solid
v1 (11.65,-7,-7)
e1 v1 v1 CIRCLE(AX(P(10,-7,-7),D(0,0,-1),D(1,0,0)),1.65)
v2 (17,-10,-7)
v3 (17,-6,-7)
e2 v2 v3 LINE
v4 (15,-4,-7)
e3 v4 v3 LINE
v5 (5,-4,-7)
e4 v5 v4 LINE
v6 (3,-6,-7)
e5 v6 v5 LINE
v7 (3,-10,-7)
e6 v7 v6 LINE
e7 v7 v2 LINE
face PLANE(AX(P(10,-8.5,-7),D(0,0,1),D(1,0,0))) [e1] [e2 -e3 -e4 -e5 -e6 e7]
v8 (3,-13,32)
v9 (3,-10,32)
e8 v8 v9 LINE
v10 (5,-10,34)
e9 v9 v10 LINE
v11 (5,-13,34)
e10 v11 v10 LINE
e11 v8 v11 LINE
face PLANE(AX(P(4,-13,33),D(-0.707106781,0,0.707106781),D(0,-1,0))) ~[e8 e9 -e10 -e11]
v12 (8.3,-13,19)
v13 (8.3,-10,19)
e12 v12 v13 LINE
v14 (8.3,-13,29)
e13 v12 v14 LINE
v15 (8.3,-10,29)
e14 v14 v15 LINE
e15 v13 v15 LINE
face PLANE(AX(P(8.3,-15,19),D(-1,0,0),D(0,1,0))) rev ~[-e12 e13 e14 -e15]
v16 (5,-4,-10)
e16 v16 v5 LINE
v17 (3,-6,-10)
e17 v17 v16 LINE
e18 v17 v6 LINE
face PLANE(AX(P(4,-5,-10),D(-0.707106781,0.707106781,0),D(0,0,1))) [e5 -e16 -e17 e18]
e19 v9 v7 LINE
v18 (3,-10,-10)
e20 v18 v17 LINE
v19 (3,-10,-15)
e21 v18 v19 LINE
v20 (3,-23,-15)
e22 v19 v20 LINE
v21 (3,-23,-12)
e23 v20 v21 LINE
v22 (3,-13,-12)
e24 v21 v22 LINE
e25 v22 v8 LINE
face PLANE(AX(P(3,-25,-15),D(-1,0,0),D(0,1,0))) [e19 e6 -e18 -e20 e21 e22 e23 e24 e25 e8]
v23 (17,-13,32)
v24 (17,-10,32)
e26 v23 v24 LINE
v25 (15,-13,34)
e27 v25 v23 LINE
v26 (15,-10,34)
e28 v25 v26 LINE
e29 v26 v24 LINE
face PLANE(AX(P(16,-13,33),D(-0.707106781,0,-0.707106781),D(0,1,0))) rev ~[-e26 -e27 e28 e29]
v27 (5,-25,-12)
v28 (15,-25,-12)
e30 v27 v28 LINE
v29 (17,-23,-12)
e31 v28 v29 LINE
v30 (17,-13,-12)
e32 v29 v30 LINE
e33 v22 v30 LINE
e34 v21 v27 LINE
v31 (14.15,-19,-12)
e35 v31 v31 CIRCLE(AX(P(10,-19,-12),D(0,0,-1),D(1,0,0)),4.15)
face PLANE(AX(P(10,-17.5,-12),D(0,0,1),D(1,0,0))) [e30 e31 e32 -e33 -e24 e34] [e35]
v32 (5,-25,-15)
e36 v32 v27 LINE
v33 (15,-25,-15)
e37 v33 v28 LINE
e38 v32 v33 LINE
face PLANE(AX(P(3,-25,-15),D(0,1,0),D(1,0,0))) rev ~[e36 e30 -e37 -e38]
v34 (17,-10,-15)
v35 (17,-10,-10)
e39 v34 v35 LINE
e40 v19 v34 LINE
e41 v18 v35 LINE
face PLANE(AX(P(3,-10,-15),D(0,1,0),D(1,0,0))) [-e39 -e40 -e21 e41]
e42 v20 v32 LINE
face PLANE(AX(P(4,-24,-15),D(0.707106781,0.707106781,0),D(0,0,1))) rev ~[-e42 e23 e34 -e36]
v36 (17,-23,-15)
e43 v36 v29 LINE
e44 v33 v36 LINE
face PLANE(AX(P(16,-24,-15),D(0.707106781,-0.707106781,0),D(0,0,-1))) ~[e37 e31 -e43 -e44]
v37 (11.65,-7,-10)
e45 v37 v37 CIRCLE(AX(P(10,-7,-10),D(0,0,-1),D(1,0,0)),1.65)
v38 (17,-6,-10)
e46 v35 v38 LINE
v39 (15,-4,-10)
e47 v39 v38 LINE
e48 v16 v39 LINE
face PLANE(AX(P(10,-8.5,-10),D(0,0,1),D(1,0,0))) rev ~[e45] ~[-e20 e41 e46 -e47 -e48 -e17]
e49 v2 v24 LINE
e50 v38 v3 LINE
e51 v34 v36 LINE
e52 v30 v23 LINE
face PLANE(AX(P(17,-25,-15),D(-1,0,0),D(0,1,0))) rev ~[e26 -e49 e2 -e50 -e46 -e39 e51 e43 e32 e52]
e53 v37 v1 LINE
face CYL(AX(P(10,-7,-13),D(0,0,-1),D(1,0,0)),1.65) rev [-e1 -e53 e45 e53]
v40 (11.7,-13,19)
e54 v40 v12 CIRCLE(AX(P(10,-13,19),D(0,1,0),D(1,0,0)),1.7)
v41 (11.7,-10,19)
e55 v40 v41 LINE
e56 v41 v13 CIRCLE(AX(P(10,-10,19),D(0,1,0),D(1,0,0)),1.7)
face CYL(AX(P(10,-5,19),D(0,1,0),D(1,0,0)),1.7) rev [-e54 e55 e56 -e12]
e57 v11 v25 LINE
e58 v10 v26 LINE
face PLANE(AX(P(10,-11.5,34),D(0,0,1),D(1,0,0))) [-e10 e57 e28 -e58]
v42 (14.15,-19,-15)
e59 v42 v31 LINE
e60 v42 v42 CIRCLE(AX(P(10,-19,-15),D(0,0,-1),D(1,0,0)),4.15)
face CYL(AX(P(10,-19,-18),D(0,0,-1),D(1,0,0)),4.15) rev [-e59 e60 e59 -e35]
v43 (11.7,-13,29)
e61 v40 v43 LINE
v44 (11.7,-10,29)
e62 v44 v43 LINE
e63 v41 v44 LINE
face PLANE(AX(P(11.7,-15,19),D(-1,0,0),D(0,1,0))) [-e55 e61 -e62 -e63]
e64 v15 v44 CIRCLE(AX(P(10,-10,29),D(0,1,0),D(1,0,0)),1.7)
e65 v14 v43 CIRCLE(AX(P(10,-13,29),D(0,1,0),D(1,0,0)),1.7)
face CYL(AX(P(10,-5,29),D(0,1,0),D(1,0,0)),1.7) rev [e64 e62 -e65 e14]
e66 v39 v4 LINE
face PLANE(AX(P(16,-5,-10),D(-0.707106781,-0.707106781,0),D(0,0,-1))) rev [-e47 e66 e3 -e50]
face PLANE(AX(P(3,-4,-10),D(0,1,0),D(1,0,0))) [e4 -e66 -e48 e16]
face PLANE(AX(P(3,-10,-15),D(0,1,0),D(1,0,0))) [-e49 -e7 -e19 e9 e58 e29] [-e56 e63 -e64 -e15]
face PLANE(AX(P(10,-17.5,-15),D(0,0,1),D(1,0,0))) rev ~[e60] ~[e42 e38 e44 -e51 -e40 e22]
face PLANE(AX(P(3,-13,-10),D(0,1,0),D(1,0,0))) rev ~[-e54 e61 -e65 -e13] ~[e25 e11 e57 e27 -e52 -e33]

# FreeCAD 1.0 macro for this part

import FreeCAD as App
import Part
import Sketcher
Q = App.Units.Quantity


def edges_at(feature, points):
    """Names of the edges that pass closest to the given points."""
    edges = feature.Shape.Edges
    near = lambda p: min(range(len(edges)), key=lambda i: edges[i].distToShape(Part.Vertex(*p))[0])
    return sorted({f"Edge{near(p) + 1}" for p in points})

doc = App.newDocument("Part")
body = doc.addObject("PartDesign::Body", "Body")

sketch1 = body.newObject("Sketcher::SketchObject", "Sketch")
sketch1.AttachmentSupport = (doc.getObject("XY_Plane"), [""])
sketch1.MapMode = "FlatFace"
sketch1.AttachmentOffset = App.Placement(App.Vector(0, 0, -17), App.Rotation())
sketch1.addGeometry(Part.Circle(App.Vector(8, -20, 0), App.Vector(0, 0, 1), 4.2), False)
sketch1.addConstraint(Sketcher.Constraint("Diameter", 0, Q("8.3 mm")))
sketch1.addConstraint(Sketcher.Constraint("DistanceX", -1, 1, 0, 3, Q("8 mm")))
sketch1.addConstraint(Sketcher.Constraint("DistanceY", 0, 3, -1, 1, Q("20 mm")))
pad1 = body.newObject("PartDesign::Pad", "Pad")
pad1.Profile = sketch1
pad1.Length = 8
body2 = doc.addObject("PartDesign::Body", "Body001")

sketch2 = body2.newObject("Sketcher::SketchObject", "Sketch001")
sketch2.AttachmentSupport = (doc.getObject("XY_Plane001"), [""])
sketch2.MapMode = "FlatFace"
sketch2.AttachmentOffset = App.Placement(App.Vector(0, 0, -14), App.Rotation())
sketch2.addGeometry(Part.LineSegment(App.Vector(1, -11, 0), App.Vector(1, -26, 0)), False)
sketch2.addGeometry(Part.LineSegment(App.Vector(1, -26, 0), App.Vector(15, -26, 0)), False)
sketch2.addGeometry(Part.LineSegment(App.Vector(15, -26, 0), App.Vector(15, -11, 0)), False)
sketch2.addGeometry(Part.LineSegment(App.Vector(15, -11, 0), App.Vector(1, -11, 0)), False)
sketch2.addConstraint(Sketcher.Constraint("Coincident", 0, 2, 1, 1))
sketch2.addConstraint(Sketcher.Constraint("Coincident", 1, 2, 2, 1))
sketch2.addConstraint(Sketcher.Constraint("Coincident", 2, 2, 3, 1))
sketch2.addConstraint(Sketcher.Constraint("Coincident", 3, 2, 0, 1))
sketch2.addConstraint(Sketcher.Constraint("Vertical", 0))
sketch2.addConstraint(Sketcher.Constraint("Horizontal", 1))
sketch2.addConstraint(Sketcher.Constraint("Vertical", 2))
sketch2.addConstraint(Sketcher.Constraint("Horizontal", 3))
sketch2.addConstraint(Sketcher.Constraint("DistanceX", 1, 1, 1, 2, Q("14 mm")))
sketch2.addConstraint(Sketcher.Constraint("DistanceY", 0, 2, 0, 1, Q("15 mm")))
sketch2.addConstraint(Sketcher.Constraint("DistanceX", -1, 1, 0, 2, Q("1 mm")))
sketch2.addConstraint(Sketcher.Constraint("DistanceY", 0, 2, -1, 1, Q("26 mm")))
pad2 = body2.newObject("PartDesign::Pad", "Pad001")
pad2.Profile = sketch2
pad2.Length = 3
doc.recompute()

boolean = body2.newObject("PartDesign::Boolean", "Boolean")
boolean.Type = "Cut"
boolean.addObjects([body])
doc.recompute()

chamfer = body2.newObject("PartDesign::Chamfer", "Chamfer")
chamfer.Base = (boolean, edges_at(boolean, [(1, -26, -12.5), (15, -26, -12.5)]))
chamfer.Size = 2
body3 = doc.addObject("PartDesign::Body", "Body002")

sketch3 = body3.newObject("Sketcher::SketchObject", "Sketch002")
sketch3.AttachmentSupport = (doc.getObject("XY_Plane002"), [""])
sketch3.MapMode = "FlatFace"
sketch3.AttachmentOffset = App.Placement(App.Vector(0, 0, -12), App.Rotation())
sketch3.addGeometry(Part.Circle(App.Vector(8, -8, 0), App.Vector(0, 0, 1), 1.6), False)
sketch3.addConstraint(Sketcher.Constraint("Diameter", 0, Q("3.3 mm")))
sketch3.addConstraint(Sketcher.Constraint("DistanceX", -1, 1, 0, 3, Q("8 mm")))
sketch3.addConstraint(Sketcher.Constraint("DistanceY", 0, 3, -1, 1, Q("8 mm")))
pad3 = body3.newObject("PartDesign::Pad", "Pad002")
pad3.Profile = sketch3
pad3.Length = 8
body4 = doc.addObject("PartDesign::Body", "Body003")

sketch4 = body4.newObject("Sketcher::SketchObject", "Sketch003")
sketch4.AttachmentSupport = (doc.getObject("XY_Plane003"), [""])
sketch4.MapMode = "FlatFace"
sketch4.AttachmentOffset = App.Placement(App.Vector(0, 0, -9), App.Rotation())
sketch4.addGeometry(Part.LineSegment(App.Vector(1, -5, 0), App.Vector(1, -14, 0)), False)
sketch4.addGeometry(Part.LineSegment(App.Vector(1, -14, 0), App.Vector(15, -14, 0)), False)
sketch4.addGeometry(Part.LineSegment(App.Vector(15, -14, 0), App.Vector(15, -5, 0)), False)
sketch4.addGeometry(Part.LineSegment(App.Vector(15, -5, 0), App.Vector(1, -5, 0)), False)
sketch4.addConstraint(Sketcher.Constraint("Coincident", 0, 2, 1, 1))
sketch4.addConstraint(Sketcher.Constraint("Coincident", 1, 2, 2, 1))
sketch4.addConstraint(Sketcher.Constraint("Coincident", 2, 2, 3, 1))
sketch4.addConstraint(Sketcher.Constraint("Coincident", 3, 2, 0, 1))
sketch4.addConstraint(Sketcher.Constraint("Vertical", 0))
sketch4.addConstraint(Sketcher.Constraint("Horizontal", 1))
sketch4.addConstraint(Sketcher.Constraint("Vertical", 2))
sketch4.addConstraint(Sketcher.Constraint("Horizontal", 3))
sketch4.addConstraint(Sketcher.Constraint("DistanceX", 1, 1, 1, 2, Q("14 mm")))
sketch4.addConstraint(Sketcher.Constraint("DistanceY", 0, 2, 0, 1, Q("9 mm")))
sketch4.addConstraint(Sketcher.Constraint("DistanceX", -1, 1, 0, 2, Q("1 mm")))
sketch4.addConstraint(Sketcher.Constraint("DistanceY", 0, 2, -1, 1, Q("14 mm")))
pad4 = body4.newObject("PartDesign::Pad", "Pad003")
pad4.Profile = sketch4
pad4.Length = 3
doc.recompute()

boolean2 = body4.newObject("PartDesign::Boolean", "Boolean001")
boolean2.Type = "Cut"
boolean2.addObjects([body3])
doc.recompute()

chamfer2 = body4.newObject("PartDesign::Chamfer", "Chamfer001")
chamfer2.Base = (boolean2, edges_at(boolean2, [(1, -5, -7.5), (15, -5, -7.5)]))
chamfer2.Size = 2
body5 = doc.addObject("PartDesign::Body", "Body004")

sketch5 = body5.newObject("Sketcher::SketchObject", "Sketch004")
sketch5.AttachmentSupport = (doc.getObject("XY_Plane004"), [""])
sketch5.MapMode = "FlatFace"
sketch5.AttachmentOffset = App.Placement(App.Vector(0, 0, 20), App.Rotation())
sketch5.addGeometry(Part.LineSegment(App.Vector(6.3, -7, 0), App.Vector(6.3, -16, 0)), False)
sketch5.addGeometry(Part.LineSegment(App.Vector(6.3, -16, 0), App.Vector(9.7, -16, 0)), False)
sketch5.addGeometry(Part.LineSegment(App.Vector(9.7, -16, 0), App.Vector(9.7, -7, 0)), False)
sketch5.addGeometry(Part.LineSegment(App.Vector(9.7, -7, 0), App.Vector(6.3, -7, 0)), False)
sketch5.addConstraint(Sketcher.Constraint("Coincident", 0, 2, 1, 1))
sketch5.addConstraint(Sketcher.Constraint("Coincident", 1, 2, 2, 1))
sketch5.addConstraint(Sketcher.Constraint("Coincident", 2, 2, 3, 1))
sketch5.addConstraint(Sketcher.Constraint("Coincident", 3, 2, 0, 1))
sketch5.addConstraint(Sketcher.Constraint("Vertical", 0))
sketch5.addConstraint(Sketcher.Constraint("Horizontal", 1))
sketch5.addConstraint(Sketcher.Constraint("Vertical", 2))
sketch5.addConstraint(Sketcher.Constraint("Horizontal", 3))
sketch5.addConstraint(Sketcher.Constraint("DistanceY", 0, 2, 0, 1, Q("9 mm")))
sketch5.addConstraint(Sketcher.Constraint("DistanceX", 1, 1, 1, 2, Q("3.4 mm")))
sketch5.addConstraint(Sketcher.Constraint("DistanceY", 0, 2, -1, 1, Q("16 mm")))
sketch5.addConstraint(Sketcher.Constraint("DistanceX", -1, 1, 0, 2, Q("6.3 mm")))
pad5 = body5.newObject("PartDesign::Pad", "Pad004")
pad5.Profile = sketch5
pad5.Length = 10
body6 = doc.addObject("PartDesign::Body", "Body005")

sketch6 = body6.newObject("Sketcher::SketchObject", "Sketch005")
sketch6.AttachmentSupport = (doc.getObject("XZ_Plane005"), [""])
sketch6.MapMode = "FlatFace"
sketch6.AttachmentOffset = App.Placement(App.Vector(0, 0, 6), App.Rotation())
sketch6.addGeometry(Part.Circle(App.Vector(8, 20, 0), App.Vector(0, 0, 1), 1.7), False)
sketch6.addConstraint(Sketcher.Constraint("Diameter", 0, Q("3.4 mm")))
sketch6.addConstraint(Sketcher.Constraint("DistanceX", -1, 1, 0, 3, Q("8 mm")))
sketch6.addConstraint(Sketcher.Constraint("DistanceY", -1, 1, 0, 3, Q("20 mm")))
pad6 = body6.newObject("PartDesign::Pad", "Pad005")
pad6.Profile = sketch6
pad6.Length = 10
body7 = doc.addObject("PartDesign::Body", "Body006")

sketch7 = body7.newObject("Sketcher::SketchObject", "Sketch006")
sketch7.AttachmentSupport = (doc.getObject("XZ_Plane006"), [""])
sketch7.MapMode = "FlatFace"
sketch7.AttachmentOffset = App.Placement(App.Vector(0, 0, 6), App.Rotation())
sketch7.addGeometry(Part.Circle(App.Vector(8, 30, 0), App.Vector(0, 0, 1), 1.7), False)
sketch7.addConstraint(Sketcher.Constraint("Diameter", 0, Q("3.4 mm")))
sketch7.addConstraint(Sketcher.Constraint("DistanceX", -1, 1, 0, 3, Q("8 mm")))
sketch7.addConstraint(Sketcher.Constraint("DistanceY", -1, 1, 0, 3, Q("30 mm")))
pad7 = body7.newObject("PartDesign::Pad", "Pad006")
pad7.Profile = sketch7
pad7.Length = 10
doc.recompute()

boolean3 = body7.newObject("PartDesign::Boolean", "Boolean002")
boolean3.Type = "Fuse"
boolean3.addObjects([body5])
doc.recompute()

boolean4 = body7.newObject("PartDesign::Boolean", "Boolean003")
boolean4.Type = "Fuse"
boolean4.addObjects([body6])
body8 = doc.addObject("PartDesign::Body", "Body007")

sketch8 = body8.newObject("Sketcher::SketchObject", "Sketch007")
sketch8.AttachmentSupport = (doc.getObject("XY_Plane007"), [""])
sketch8.MapMode = "FlatFace"
sketch8.AttachmentOffset = App.Placement(App.Vector(0, 0, -14), App.Rotation())
sketch8.addGeometry(Part.LineSegment(App.Vector(1, -11, 0), App.Vector(1, -14, 0)), False)
sketch8.addGeometry(Part.LineSegment(App.Vector(1, -14, 0), App.Vector(15, -14, 0)), False)
sketch8.addGeometry(Part.LineSegment(App.Vector(15, -14, 0), App.Vector(15, -11, 0)), False)
sketch8.addGeometry(Part.LineSegment(App.Vector(15, -11, 0), App.Vector(1, -11, 0)), False)
sketch8.addConstraint(Sketcher.Constraint("Coincident", 0, 2, 1, 1))
sketch8.addConstraint(Sketcher.Constraint("Coincident", 1, 2, 2, 1))
sketch8.addConstraint(Sketcher.Constraint("Coincident", 2, 2, 3, 1))
sketch8.addConstraint(Sketcher.Constraint("Coincident", 3, 2, 0, 1))
sketch8.addConstraint(Sketcher.Constraint("Vertical", 0))
sketch8.addConstraint(Sketcher.Constraint("Horizontal", 1))
sketch8.addConstraint(Sketcher.Constraint("Vertical", 2))
sketch8.addConstraint(Sketcher.Constraint("Horizontal", 3))
sketch8.addConstraint(Sketcher.Constraint("DistanceX", 1, 1, 1, 2, Q("14 mm")))
sketch8.addConstraint(Sketcher.Constraint("DistanceY", 0, 2, 0, 1, Q("3 mm")))
sketch8.addConstraint(Sketcher.Constraint("DistanceX", -1, 1, 0, 2, Q("1 mm")))
sketch8.addConstraint(Sketcher.Constraint("DistanceY", 0, 2, -1, 1, Q("14 mm")))
pad8 = body8.newObject("PartDesign::Pad", "Pad007")
pad8.Profile = sketch8
pad8.Length = 49
doc.recompute()

boolean5 = body8.newObject("PartDesign::Boolean", "Boolean004")
boolean5.Type = "Cut"
boolean5.addObjects([body7])
doc.recompute()

chamfer3 = body8.newObject("PartDesign::Chamfer", "Chamfer002")
chamfer3.Base = (boolean5, edges_at(boolean5, [(1, -12.5, 35), (15, -12.5, 35)]))
chamfer3.Size = 2
doc.recompute()

boolean6 = body8.newObject("PartDesign::Boolean", "Boolean005")
boolean6.Type = "Fuse"
boolean6.addObjects([body2])
doc.recompute()

boolean7 = body8.newObject("PartDesign::Boolean", "Boolean006")
boolean7.Type = "Fuse"
boolean7.addObjects([body4])
body9 = doc.addObject("PartDesign::Body", "Body008")
doc.recompute()

body8.Placement = App.Placement(App.Vector(2, 1, -1), App.Rotation(App.Vector(0, 0, 1), 0))
boolean8 = body9.newObject("PartDesign::Boolean", "Boolean007")
boolean8.Type = "Fuse"
boolean8.addObjects([body8])

doc.recompute()
